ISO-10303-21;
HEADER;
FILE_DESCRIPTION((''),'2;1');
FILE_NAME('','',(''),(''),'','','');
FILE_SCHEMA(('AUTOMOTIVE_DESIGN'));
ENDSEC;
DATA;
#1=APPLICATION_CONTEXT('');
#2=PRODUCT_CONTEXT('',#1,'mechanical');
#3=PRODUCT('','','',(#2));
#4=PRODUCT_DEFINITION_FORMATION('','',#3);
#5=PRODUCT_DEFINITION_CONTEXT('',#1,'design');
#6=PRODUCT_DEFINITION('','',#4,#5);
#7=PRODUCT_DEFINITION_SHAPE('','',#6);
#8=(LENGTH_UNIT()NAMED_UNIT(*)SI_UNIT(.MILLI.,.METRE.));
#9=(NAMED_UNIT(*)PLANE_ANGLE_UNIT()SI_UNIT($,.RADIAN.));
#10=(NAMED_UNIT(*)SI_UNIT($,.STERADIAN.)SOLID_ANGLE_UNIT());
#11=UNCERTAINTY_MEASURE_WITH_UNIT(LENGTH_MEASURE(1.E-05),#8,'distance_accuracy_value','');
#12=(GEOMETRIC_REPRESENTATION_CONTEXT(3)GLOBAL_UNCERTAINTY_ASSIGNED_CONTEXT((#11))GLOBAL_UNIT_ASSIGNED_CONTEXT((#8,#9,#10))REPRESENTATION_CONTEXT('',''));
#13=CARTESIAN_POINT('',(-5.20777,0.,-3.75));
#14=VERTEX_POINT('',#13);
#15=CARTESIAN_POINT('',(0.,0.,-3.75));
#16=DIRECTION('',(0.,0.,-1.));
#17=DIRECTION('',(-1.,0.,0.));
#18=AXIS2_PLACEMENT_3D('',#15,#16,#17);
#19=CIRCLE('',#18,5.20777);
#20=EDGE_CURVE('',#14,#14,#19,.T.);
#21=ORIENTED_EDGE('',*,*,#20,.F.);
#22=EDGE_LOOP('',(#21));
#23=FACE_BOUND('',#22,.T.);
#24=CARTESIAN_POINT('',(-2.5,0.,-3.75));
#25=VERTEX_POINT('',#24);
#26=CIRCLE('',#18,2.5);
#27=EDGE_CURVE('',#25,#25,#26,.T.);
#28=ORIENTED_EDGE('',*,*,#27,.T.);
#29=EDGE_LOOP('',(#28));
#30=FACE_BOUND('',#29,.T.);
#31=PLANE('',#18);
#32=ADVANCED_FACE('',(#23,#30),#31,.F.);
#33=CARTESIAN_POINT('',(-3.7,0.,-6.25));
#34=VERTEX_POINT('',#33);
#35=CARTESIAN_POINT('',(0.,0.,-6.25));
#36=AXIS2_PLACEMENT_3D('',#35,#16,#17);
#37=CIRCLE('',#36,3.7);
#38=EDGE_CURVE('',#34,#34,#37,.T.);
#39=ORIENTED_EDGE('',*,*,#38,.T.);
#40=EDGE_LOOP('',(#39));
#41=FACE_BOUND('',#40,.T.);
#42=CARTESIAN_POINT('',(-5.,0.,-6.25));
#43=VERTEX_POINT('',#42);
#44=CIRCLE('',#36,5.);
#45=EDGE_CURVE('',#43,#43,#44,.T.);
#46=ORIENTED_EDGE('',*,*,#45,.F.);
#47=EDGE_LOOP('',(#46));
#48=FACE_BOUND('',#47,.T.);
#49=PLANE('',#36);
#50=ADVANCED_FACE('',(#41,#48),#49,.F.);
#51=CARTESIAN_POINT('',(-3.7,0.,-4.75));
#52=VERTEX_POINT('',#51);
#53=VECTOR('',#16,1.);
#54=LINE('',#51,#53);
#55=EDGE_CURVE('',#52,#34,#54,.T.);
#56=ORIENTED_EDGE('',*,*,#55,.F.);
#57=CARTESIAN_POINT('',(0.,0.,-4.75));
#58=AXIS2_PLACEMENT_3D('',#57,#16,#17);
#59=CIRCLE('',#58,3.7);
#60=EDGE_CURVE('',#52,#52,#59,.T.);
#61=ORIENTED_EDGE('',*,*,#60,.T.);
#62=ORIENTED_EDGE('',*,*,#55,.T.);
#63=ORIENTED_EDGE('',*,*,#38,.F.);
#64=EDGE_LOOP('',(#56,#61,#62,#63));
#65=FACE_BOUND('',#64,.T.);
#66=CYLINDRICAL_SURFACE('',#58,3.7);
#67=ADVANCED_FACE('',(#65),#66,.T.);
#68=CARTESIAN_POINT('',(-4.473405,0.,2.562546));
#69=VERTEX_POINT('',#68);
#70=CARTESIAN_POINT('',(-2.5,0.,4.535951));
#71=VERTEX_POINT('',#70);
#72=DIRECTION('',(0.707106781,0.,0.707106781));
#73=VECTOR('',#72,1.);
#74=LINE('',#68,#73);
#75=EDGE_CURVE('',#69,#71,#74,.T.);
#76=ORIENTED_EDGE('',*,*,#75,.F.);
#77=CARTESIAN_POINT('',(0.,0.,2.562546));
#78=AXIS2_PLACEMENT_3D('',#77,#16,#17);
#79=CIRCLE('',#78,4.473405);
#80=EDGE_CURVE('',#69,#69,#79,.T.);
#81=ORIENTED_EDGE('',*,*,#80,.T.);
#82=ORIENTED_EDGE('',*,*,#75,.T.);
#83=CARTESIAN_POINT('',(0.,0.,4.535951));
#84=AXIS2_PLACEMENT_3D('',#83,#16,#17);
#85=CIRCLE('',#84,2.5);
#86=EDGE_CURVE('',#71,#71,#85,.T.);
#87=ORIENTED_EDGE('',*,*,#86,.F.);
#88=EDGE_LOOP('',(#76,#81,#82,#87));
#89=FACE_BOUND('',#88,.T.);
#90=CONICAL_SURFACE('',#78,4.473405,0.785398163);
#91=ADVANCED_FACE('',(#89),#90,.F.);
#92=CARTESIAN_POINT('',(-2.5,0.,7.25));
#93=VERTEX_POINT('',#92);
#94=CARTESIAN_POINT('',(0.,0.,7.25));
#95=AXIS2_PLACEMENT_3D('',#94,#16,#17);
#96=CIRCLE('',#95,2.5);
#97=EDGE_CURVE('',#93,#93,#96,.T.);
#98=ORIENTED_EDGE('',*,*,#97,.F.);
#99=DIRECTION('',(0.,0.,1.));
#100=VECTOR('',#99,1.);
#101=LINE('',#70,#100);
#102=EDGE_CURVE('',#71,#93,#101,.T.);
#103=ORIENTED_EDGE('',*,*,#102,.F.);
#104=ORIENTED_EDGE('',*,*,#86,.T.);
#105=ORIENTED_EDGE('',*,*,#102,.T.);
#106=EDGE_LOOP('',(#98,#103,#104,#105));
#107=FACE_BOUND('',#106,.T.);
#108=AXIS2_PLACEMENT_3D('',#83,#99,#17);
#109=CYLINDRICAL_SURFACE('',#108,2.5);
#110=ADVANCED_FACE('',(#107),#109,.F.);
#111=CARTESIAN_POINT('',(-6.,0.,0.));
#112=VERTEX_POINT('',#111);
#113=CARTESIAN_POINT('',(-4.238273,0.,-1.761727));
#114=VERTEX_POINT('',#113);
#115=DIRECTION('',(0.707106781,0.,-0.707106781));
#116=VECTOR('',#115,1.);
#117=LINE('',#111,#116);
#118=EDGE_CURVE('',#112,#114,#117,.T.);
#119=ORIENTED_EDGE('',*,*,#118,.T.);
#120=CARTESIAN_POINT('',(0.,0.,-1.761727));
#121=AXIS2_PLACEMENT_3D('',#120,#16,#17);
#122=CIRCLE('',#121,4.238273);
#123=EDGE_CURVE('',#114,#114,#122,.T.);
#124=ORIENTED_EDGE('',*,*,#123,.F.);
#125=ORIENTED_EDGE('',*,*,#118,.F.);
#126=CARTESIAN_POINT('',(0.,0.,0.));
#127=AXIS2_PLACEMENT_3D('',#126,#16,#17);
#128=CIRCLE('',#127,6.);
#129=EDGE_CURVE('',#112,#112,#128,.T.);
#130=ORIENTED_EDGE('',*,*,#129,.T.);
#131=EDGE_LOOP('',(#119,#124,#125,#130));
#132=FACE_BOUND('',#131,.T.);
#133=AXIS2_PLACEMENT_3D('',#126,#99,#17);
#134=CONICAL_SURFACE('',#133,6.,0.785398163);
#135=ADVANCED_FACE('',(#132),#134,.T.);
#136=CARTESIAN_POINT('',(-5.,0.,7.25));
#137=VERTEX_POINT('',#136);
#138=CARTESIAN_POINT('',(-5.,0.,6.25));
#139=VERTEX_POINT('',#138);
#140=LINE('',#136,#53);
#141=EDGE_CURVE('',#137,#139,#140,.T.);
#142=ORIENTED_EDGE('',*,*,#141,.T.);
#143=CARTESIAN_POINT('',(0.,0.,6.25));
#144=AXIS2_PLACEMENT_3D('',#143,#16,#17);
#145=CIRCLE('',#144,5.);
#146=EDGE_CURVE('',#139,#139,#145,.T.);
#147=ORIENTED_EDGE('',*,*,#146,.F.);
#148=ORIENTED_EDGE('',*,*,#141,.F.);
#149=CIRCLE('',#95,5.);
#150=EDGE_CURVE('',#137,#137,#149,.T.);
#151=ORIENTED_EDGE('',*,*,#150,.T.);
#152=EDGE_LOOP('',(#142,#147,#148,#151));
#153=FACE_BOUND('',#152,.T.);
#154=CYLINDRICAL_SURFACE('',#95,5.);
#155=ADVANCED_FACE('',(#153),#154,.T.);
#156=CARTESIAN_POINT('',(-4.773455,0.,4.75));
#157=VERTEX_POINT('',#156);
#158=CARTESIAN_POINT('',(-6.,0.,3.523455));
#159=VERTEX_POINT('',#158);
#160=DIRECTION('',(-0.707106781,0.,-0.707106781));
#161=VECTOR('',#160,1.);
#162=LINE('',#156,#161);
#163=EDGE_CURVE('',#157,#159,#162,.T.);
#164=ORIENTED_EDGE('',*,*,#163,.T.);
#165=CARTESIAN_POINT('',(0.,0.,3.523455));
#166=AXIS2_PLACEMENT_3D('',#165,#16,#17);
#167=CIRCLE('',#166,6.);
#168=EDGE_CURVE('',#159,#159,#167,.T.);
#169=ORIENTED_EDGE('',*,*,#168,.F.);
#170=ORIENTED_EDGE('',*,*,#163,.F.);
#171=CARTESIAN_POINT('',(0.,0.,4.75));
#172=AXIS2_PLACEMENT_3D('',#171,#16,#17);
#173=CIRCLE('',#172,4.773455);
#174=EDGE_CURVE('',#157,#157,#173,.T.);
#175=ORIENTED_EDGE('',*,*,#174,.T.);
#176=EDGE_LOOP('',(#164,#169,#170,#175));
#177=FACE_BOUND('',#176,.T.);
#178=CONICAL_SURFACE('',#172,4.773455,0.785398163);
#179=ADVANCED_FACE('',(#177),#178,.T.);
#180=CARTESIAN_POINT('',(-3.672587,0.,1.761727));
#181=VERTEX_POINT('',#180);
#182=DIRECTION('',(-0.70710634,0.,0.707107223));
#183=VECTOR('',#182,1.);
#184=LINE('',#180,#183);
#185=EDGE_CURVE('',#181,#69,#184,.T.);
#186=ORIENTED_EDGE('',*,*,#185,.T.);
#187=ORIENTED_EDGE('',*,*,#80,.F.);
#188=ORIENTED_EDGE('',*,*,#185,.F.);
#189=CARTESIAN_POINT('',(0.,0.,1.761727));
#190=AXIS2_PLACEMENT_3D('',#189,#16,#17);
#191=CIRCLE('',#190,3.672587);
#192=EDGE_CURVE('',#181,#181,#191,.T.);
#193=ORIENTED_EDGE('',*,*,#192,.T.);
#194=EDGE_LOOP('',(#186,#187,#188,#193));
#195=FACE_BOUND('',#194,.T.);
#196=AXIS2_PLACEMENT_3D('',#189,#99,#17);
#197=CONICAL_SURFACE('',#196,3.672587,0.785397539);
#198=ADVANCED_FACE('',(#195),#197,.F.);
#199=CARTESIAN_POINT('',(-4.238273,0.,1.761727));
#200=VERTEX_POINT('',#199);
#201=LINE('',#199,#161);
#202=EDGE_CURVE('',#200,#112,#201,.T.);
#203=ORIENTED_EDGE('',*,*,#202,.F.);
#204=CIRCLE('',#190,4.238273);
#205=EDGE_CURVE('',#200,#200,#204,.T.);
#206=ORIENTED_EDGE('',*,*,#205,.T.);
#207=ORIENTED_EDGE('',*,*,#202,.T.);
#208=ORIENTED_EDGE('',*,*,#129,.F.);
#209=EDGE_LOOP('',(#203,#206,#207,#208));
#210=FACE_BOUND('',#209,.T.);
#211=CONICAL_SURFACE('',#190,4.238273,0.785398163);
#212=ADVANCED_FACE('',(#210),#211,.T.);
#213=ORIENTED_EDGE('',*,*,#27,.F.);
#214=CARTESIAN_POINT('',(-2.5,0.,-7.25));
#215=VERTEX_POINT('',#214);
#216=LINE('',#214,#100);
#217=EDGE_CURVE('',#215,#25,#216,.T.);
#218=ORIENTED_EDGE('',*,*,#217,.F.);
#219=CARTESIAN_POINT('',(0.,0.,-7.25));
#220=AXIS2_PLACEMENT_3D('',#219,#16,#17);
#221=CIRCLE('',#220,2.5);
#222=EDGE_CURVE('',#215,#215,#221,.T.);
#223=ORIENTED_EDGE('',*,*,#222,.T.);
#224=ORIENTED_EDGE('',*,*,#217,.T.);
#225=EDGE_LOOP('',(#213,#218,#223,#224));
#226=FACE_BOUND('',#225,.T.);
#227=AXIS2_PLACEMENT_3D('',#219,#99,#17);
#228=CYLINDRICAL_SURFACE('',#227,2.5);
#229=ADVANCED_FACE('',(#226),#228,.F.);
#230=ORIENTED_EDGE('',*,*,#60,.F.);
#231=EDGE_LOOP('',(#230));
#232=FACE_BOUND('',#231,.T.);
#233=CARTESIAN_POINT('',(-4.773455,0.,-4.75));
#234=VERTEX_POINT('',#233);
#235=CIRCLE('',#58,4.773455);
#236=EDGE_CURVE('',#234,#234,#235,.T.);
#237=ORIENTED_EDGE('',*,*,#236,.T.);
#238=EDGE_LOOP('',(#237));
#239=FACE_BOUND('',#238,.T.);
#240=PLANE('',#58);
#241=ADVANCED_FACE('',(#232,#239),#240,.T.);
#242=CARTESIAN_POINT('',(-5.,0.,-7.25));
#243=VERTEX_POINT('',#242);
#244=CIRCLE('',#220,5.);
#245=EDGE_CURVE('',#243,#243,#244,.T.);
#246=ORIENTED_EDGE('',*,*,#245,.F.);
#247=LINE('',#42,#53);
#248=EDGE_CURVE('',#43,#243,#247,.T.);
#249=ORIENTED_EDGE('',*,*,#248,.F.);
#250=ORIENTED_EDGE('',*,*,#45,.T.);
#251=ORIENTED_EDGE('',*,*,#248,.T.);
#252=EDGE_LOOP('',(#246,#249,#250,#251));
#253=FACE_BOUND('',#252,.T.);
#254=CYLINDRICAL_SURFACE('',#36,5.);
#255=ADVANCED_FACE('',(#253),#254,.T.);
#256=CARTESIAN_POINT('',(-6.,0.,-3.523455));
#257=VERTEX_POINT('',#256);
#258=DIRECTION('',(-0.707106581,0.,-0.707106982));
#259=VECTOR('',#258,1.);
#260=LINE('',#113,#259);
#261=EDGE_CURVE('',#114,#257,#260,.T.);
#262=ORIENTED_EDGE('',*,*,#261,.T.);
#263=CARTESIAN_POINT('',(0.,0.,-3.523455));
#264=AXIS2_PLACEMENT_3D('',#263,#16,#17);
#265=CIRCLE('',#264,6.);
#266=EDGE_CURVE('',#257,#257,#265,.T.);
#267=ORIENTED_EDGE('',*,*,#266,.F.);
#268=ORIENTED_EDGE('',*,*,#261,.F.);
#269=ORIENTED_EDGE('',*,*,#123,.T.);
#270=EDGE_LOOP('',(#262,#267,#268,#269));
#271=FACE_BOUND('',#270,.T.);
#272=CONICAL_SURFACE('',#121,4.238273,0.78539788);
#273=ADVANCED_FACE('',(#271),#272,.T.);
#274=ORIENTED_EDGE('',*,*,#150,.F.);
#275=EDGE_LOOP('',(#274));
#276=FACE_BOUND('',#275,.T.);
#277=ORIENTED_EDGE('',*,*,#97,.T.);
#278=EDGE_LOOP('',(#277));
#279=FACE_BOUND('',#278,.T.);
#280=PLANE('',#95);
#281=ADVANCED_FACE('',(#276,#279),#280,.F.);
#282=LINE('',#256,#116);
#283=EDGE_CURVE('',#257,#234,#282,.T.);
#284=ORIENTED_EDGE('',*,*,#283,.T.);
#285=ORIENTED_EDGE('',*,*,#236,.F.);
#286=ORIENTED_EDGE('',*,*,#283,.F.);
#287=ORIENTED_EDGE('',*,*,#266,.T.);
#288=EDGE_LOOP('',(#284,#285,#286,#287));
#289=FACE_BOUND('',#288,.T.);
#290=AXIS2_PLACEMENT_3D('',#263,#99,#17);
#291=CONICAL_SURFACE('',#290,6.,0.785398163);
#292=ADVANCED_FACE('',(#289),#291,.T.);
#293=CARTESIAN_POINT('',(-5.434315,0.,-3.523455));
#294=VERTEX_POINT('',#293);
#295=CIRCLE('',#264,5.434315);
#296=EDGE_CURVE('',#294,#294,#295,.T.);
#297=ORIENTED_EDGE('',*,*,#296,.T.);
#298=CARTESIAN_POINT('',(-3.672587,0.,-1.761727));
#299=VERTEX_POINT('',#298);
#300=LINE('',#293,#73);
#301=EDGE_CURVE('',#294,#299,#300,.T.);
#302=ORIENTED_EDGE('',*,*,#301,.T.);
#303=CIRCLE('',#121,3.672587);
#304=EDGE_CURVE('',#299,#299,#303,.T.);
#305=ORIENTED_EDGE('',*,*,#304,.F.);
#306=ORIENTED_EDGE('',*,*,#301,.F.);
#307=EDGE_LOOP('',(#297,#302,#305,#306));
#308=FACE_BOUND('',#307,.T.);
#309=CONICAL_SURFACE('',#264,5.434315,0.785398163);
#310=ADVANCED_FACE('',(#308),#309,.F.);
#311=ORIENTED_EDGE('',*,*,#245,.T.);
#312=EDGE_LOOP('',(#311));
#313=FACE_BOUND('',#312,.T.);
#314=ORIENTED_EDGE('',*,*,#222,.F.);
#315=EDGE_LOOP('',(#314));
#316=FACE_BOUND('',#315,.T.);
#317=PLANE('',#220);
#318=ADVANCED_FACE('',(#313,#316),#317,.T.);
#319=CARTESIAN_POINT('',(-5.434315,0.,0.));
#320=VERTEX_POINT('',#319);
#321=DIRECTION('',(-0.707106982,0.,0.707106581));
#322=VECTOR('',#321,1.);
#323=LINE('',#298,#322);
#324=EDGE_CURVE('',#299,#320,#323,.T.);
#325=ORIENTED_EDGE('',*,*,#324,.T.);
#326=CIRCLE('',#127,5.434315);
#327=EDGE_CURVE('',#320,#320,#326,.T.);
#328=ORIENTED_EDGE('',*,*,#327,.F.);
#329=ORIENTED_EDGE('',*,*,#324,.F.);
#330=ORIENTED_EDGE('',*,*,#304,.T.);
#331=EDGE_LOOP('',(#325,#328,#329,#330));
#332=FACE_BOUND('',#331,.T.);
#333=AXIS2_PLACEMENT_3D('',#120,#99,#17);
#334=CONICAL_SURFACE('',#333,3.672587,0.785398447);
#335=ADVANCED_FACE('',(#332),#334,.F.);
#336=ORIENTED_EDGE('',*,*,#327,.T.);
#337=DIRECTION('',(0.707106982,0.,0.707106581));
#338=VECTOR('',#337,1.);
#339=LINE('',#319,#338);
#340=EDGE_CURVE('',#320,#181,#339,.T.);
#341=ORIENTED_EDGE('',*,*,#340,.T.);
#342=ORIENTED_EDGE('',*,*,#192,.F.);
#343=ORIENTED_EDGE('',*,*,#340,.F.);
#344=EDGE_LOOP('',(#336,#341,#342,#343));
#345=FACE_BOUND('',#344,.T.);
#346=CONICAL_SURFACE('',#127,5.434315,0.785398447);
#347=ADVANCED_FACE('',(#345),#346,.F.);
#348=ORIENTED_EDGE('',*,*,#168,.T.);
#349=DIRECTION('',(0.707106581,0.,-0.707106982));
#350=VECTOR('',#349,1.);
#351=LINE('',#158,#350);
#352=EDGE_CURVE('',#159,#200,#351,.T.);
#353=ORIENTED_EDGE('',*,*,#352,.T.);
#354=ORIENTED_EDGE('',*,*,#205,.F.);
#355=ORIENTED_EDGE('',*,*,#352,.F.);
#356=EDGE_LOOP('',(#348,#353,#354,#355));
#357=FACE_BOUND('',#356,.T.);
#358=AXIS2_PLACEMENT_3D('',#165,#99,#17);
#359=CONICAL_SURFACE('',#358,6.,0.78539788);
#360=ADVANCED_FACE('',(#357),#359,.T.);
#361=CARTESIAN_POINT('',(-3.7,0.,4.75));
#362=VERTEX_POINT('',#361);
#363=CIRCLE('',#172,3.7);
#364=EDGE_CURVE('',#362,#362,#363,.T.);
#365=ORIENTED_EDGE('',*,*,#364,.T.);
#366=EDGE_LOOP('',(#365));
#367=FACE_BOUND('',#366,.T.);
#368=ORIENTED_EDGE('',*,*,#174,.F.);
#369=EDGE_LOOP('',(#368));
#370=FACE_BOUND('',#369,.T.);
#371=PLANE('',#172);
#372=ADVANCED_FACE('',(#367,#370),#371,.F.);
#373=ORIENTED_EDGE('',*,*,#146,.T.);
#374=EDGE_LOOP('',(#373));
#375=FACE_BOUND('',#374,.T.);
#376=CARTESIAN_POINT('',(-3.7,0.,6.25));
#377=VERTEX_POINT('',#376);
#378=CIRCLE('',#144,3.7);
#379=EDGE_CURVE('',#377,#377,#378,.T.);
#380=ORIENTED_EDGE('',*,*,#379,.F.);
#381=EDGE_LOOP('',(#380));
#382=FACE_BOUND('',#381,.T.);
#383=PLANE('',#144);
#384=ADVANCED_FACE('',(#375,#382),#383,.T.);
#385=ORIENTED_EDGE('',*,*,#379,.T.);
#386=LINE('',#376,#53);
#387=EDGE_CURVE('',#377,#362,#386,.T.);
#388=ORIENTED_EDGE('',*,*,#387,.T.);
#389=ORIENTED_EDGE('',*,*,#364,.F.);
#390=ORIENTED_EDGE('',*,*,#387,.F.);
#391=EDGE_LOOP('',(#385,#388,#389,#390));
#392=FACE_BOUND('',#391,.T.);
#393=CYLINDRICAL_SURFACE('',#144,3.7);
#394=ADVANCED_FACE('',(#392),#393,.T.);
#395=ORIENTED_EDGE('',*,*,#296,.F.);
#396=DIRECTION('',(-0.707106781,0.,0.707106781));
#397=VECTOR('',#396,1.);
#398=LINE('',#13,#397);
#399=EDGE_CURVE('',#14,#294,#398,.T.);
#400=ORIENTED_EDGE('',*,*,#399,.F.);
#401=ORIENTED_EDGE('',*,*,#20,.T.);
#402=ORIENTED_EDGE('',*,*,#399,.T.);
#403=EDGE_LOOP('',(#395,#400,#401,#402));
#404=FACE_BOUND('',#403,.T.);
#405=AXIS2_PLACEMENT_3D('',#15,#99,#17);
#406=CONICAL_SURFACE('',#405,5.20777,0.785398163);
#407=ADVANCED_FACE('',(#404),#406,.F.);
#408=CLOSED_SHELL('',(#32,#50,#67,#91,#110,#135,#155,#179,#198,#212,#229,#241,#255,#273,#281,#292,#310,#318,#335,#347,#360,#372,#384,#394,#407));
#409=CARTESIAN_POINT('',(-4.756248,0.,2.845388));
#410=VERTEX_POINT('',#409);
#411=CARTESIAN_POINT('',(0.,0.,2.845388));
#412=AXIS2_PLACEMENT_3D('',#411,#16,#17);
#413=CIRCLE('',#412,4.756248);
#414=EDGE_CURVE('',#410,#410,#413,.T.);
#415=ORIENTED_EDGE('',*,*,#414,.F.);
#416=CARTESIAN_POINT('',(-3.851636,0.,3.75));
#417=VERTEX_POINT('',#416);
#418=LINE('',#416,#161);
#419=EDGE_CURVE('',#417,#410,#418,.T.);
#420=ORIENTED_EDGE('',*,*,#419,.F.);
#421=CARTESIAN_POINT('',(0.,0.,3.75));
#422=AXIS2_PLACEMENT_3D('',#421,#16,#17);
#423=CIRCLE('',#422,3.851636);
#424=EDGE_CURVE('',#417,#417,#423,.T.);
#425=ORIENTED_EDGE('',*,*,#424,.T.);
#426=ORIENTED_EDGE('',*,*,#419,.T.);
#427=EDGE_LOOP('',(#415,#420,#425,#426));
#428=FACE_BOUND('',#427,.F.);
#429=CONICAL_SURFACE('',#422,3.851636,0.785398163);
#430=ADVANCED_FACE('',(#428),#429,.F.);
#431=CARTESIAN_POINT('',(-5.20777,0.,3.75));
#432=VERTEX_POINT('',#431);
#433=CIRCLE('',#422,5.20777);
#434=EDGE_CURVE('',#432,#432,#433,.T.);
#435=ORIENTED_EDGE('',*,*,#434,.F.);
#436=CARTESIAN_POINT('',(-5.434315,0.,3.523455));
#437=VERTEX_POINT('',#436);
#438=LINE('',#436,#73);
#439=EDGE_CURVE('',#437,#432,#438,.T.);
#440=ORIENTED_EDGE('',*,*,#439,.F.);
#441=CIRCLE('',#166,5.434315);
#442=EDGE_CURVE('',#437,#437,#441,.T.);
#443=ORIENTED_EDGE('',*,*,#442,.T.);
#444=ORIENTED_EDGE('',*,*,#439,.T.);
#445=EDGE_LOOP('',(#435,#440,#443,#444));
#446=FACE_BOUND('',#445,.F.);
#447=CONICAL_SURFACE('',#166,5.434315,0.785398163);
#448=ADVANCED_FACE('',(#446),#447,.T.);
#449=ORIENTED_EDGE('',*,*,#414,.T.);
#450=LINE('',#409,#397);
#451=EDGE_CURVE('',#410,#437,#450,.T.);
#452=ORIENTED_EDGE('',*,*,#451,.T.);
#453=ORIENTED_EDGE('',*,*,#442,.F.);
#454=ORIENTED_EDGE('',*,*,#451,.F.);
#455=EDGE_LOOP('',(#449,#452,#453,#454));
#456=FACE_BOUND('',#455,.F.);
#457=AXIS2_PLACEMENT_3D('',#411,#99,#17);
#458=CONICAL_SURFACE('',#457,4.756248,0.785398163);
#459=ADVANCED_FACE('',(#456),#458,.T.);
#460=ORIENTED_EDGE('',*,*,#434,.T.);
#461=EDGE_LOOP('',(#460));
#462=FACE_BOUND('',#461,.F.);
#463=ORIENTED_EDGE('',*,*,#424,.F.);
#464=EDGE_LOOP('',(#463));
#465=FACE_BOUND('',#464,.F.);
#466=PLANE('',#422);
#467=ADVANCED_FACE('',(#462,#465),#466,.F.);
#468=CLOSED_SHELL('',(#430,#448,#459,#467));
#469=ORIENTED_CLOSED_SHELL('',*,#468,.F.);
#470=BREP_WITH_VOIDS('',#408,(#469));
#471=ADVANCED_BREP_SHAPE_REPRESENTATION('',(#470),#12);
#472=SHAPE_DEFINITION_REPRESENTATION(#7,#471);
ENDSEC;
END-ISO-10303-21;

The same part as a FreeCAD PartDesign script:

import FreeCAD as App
import Part
import Sketcher
from FreeCAD import Vector


def add_polygon(sketch, points):
    """Adds a closed chain of lines whose ends are joined by coincident constraints."""
    first, n = sketch.GeometryCount, len(points)
    for a, b in zip(points, points[1:] + points[:1]):
        sketch.addGeometry(Part.LineSegment(App.Vector(*a, 0), App.Vector(*b, 0)), False)
    for i in range(n):
        sketch.addConstraint(Sketcher.Constraint("Coincident", first + i, 2, first + (i + 1) % n, 1))

doc = App.newDocument("Part")
body = doc.addObject("PartDesign::Body", "Body")

# Sketch on XZ plane
sketch1 = body.newObject("Sketcher::SketchObject", "Sketch")
sketch1.AttachmentSupport = (doc.getObject("XZ_Plane"), [""])
sketch1.MapMode = "FlatFace"
add_polygon(sketch1, [(-2.5, 4.535951), (-2.5, 7.25), (-5, 7.25), (-5, 6.25), (-3.7, 6.25), (-3.7, 4.75), (-4.773455, 4.75), (-6, 3.523455), (-4.238273, 1.761727), (-6, 0), (-4.238273, -1.761727), (-6, -3.523455), (-4.773455, -4.75), (-3.7, -4.75), (-3.7, -6.25), (-5, -6.25), (-5, -7.25), (-2.5, -7.25), (-2.5, -3.75), (-5.20777, -3.75), (-5.434315, -3.523455), (-3.672587, -1.761727), (-5.434315, 0), (-3.672587, 1.761727), (-4.473405, 2.562546)])  # lines 0-24
add_polygon(sketch1, [(-3.851636, 3.75), (-4.756248, 2.845388), (-5.434315, 3.523455), (-5.20777, 3.75)])  # lines 25-28
sketch1.addConstraint([
    Sketcher.Constraint("Vertical", 0),
    Sketcher.Constraint("Horizontal", 1),
    Sketcher.Constraint("Vertical", 2),
    Sketcher.Constraint("Horizontal", 3),
    Sketcher.Constraint("Vertical", 4),
    Sketcher.Constraint("Horizontal", 5),
    Sketcher.Constraint("Horizontal", 12),
    Sketcher.Constraint("Vertical", 13),
    Sketcher.Constraint("Horizontal", 14),
    Sketcher.Constraint("Vertical", 15),
    Sketcher.Constraint("Horizontal", 16),
    Sketcher.Constraint("Vertical", 17),
    Sketcher.Constraint("Horizontal", 18),
    Sketcher.Constraint("Horizontal", 28),
    Sketcher.Constraint("Symmetric", 7, 2, 9, 2, -1),
    Sketcher.Constraint("Symmetric", 6, 2, 10, 2, -1),
    Sketcher.Constraint("Symmetric", 5, 2, 11, 2, -1),
    Sketcher.Constraint("Symmetric", 3, 2, 13, 2, -1),
    Sketcher.Constraint("Symmetric", 1, 2, 15, 2, -1),
    Sketcher.Constraint("Symmetric", 20, 2, 22, 2, -1),
    Sketcher.Constraint("Symmetric", 19, 2, 26, 2, -1),
    Sketcher.Constraint("Symmetric", 18, 2, 27, 2, -1),
    Sketcher.Constraint("PointOnObject", 8, 2, -1),
    Sketcher.Constraint("PointOnObject", 21, 2, -1),
    Sketcher.Constraint("Perpendicular", 6, 7),
    Sketcher.Constraint("Perpendicular", 7, 8),
    Sketcher.Constraint("Perpendicular", 8, 9),
    Sketcher.Constraint("Parallel", 11, 19),
    Sketcher.Constraint("Perpendicular", 19, 20),
    Sketcher.Constraint("Perpendicular", 20, 21),
    Sketcher.Constraint("Perpendicular", 22, 23),
    Sketcher.Constraint("Perpendicular", 23, 24),
    Sketcher.Constraint("Parallel", 24, 25),
    Sketcher.Constraint("Perpendicular", 25, 26),
    Sketcher.Constraint("Horizontal", 10, 2, 19, 2),
    Sketcher.Constraint("Horizontal", 9, 2, 20, 2),
    Sketcher.Constraint("Vertical", 6, 2, 8, 2),
    Sketcher.Constraint("Vertical", 0, 2, 16, 2),
    Sketcher.Constraint("DistanceY", 2, 2, 2, 1, 1.0),
    Sketcher.Constraint("DistanceX", 1, 2, 1, 1, 2.5),
    Sketcher.Constraint("DistanceX", 3, 1, 3, 2, 1.3),
    Sketcher.Constraint("DistanceY", 4, 2, 4, 1, 1.5),
    Sketcher.Constraint("DistanceY", 17, 1, 17, 2, 3.5),
    Sketcher.Constraint("DistanceX", 1, 2, -1, 1, 5.0),
    Sketcher.Constraint("DistanceX", 6, 2, -1, 1, 6.0),
    Sketcher.Constraint("DistanceY", -1, 1, 0, 2, 7.25),
    Sketcher.Constraint("DistanceX", 18, 2, 18, 1, 2.70777),
    Sketcher.Constraint("DistanceY", 0, 1, 0, 2, 2.714049),
    Sketcher.Constraint("Distance", 7, 2.491459),
    Sketcher.Constraint("Distance", 26, 0.958932),
])
revolution = body.newObject("PartDesign::Revolution", "Revolution")
revolution.Profile = sketch1
revolution.ReferenceAxis = (sketch1, ["V_Axis"])
revolution.Angle = 360

doc.recompute()
